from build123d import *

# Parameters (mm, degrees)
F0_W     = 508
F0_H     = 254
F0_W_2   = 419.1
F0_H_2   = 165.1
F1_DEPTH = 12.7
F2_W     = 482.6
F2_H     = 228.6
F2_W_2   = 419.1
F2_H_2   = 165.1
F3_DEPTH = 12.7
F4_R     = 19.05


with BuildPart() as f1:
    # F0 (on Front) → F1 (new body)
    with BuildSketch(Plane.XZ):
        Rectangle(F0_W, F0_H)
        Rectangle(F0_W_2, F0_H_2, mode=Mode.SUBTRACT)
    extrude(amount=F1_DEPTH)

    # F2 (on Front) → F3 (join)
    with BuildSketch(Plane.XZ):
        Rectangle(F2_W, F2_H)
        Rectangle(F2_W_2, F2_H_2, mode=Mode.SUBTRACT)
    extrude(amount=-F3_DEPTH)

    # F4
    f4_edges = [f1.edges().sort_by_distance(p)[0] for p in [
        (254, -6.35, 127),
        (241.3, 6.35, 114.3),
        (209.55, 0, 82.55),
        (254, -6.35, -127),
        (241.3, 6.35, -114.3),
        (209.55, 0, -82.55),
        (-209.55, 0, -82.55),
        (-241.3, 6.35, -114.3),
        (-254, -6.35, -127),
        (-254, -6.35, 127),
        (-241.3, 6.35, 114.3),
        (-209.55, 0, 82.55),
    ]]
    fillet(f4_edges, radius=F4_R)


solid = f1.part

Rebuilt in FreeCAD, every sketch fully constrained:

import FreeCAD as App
import Part
import Sketcher
from FreeCAD import Vector
Q = App.Units.Quantity


def edges_at(feature, points):
    """Names of the edges that pass closest to the given points."""
    edges = feature.Shape.Edges
    near = lambda p: min(range(len(edges)), key=lambda i: edges[i].distToShape(Part.Vertex(*p))[0])
    return sorted({f"Edge{near(p) + 1}" for p in points})


def add_polygon(sketch, points):
    """Adds a closed chain of lines whose ends are joined by coincident constraints."""
    first, n = sketch.GeometryCount, len(points)
    for a, b in zip(points, points[1:] + points[:1]):
        sketch.addGeometry(Part.LineSegment(App.Vector(*a, 0), App.Vector(*b, 0)), False)
    for i in range(n):
        sketch.addConstraint(Sketcher.Constraint("Coincident", first + i, 2, first + (i + 1) % n, 1))

doc = App.newDocument("Part")
params = doc.addObject("Spreadsheet::Sheet", "Params")
for row, (alias, value) in enumerate([
    ("sketch1_width", "20 in"),
    ("sketch1_height", "10 in"),
    ("sketch1_width2", "16.5 in"),
    ("sketch1_height2", "6.5 in"),
    ("pad1_length", "0.5 in"),
    ("sketch2_width", "19 in"),
    ("sketch2_height", "9 in"),
    ("sketch2_width2", "16.5 in"),
    ("sketch2_height2", "6.5 in"),
    ("pad2_length", "0.5 in"),
    ("fillet_radius", "0.75 in"),
], start=1):
    params.set(f"A{row}", alias)
    params.set(f"B{row}", "=" + value)
    params.setAlias(f"B{row}", alias)

body = doc.addObject("PartDesign::Body", "Body")

# Sketch on XZ plane
sketch1 = doc.addObject("Sketcher::SketchObject", "Sketch")
body.addObject(sketch1)
sketch1.AttachmentSupport = (doc.XZ_Plane, [""])
sketch1.MapMode = "FlatFace"
add_polygon(sketch1, [(-254, 127), (-254, -127), (254, -127), (254, 127)])  # lines 0-3
add_polygon(sketch1, [(210, -83), (-210, -83), (-210, 83), (210, 83)])  # lines 4-7
sketch1.addConstraint([
    Sketcher.Constraint("Vertical", 0),
    Sketcher.Constraint("Horizontal", 1),
    Sketcher.Constraint("Vertical", 2),
    Sketcher.Constraint("Horizontal", 3),
    Sketcher.Constraint("Horizontal", 4),
    Sketcher.Constraint("Vertical", 5),
    Sketcher.Constraint("Horizontal", 6),
    Sketcher.Constraint("Vertical", 7),
    Sketcher.Constraint("Symmetric", 0, 2, 2, 2, -1, 1),
    Sketcher.Constraint("Symmetric", 4, 2, 6, 2, -1, 1),
    Sketcher.Constraint("DistanceX", 1, 1, 1, 2, Q("20 in")),
    Sketcher.Constraint("DistanceY", 0, 2, 0, 1, Q("10 in")),
    Sketcher.Constraint("DistanceX", 4, 2, 4, 1, Q("16.5 in")),
    Sketcher.Constraint("DistanceY", 5, 1, 5, 2, Q("6.5 in")),
])
sketch1.setExpression("Constraints[18]", "Params.sketch1_width")
sketch1.setExpression("Constraints[19]", "Params.sketch1_height")
sketch1.setExpression("Constraints[20]", "Params.sketch1_width2")
sketch1.setExpression("Constraints[21]", "Params.sketch1_height2")
pad1 = doc.addObject("PartDesign::Pad", "Pad")
body.addObject(pad1)
pad1.Profile = sketch1
pad1.setExpression("Length", "Params.pad1_length")

# Sketch on XZ plane
sketch2 = doc.addObject("Sketcher::SketchObject", "Sketch001")
body.addObject(sketch2)
sketch2.AttachmentSupport = (doc.XZ_Plane, [""])
sketch2.MapMode = "FlatFace"
add_polygon(sketch2, [(-241, 114), (-241, -114), (241, -114), (241, 114)])  # lines 0-3
add_polygon(sketch2, [(210, -83), (-210, -83), (-210, 83), (210, 83)])  # lines 4-7
sketch2.addConstraint([
    Sketcher.Constraint("Vertical", 0),
    Sketcher.Constraint("Horizontal", 1),
    Sketcher.Constraint("Vertical", 2),
    Sketcher.Constraint("Horizontal", 3),
    Sketcher.Constraint("Horizontal", 4),
    Sketcher.Constraint("Vertical", 5),
    Sketcher.Constraint("Horizontal", 6),
    Sketcher.Constraint("Vertical", 7),
    Sketcher.Constraint("Symmetric", 0, 2, 2, 2, -1, 1),
    Sketcher.Constraint("Symmetric", 4, 2, 6, 2, -1, 1),
    Sketcher.Constraint("DistanceX", 1, 1, 1, 2, Q("19 in")),
    Sketcher.Constraint("DistanceY", 0, 2, 0, 1, Q("9 in")),
    Sketcher.Constraint("DistanceX", 4, 2, 4, 1, Q("16.5 in")),
    Sketcher.Constraint("DistanceY", 5, 1, 5, 2, Q("6.5 in")),
])
sketch2.setExpression("Constraints[18]", "Params.sketch2_width")
sketch2.setExpression("Constraints[19]", "Params.sketch2_height")
sketch2.setExpression("Constraints[20]", "Params.sketch2_width2")
sketch2.setExpression("Constraints[21]", "Params.sketch2_height2")
pad2 = doc.addObject("PartDesign::Pad", "Pad001")
body.addObject(pad2)
pad2.Profile = sketch2
pad2.setExpression("Length", "Params.pad2_length")
pad2.Reversed = True
doc.recompute()

fillet = doc.addObject("PartDesign::Fillet", "Fillet")
body.addObject(fillet)
fillet.Base = (pad2, edges_at(pad2, [
    (254, -6.35, 127),
    (241.3, 6.35, 114.3),
    (209.55, 0, 82.55),
    (254, -6.35, -127),
    (241.3, 6.35, -114.3),
    (209.55, 0, -82.55),
    (-209.55, 0, -82.55),
    (-241.3, 6.35, -114.3),
    (-254, -6.35, -127),
    (-254, -6.35, 127),
    (-241.3, 6.35, 114.3),
    (-209.55, 0, 82.55),
]))
fillet.setExpression("Radius", "Params.fillet_radius")

doc.recompute()
